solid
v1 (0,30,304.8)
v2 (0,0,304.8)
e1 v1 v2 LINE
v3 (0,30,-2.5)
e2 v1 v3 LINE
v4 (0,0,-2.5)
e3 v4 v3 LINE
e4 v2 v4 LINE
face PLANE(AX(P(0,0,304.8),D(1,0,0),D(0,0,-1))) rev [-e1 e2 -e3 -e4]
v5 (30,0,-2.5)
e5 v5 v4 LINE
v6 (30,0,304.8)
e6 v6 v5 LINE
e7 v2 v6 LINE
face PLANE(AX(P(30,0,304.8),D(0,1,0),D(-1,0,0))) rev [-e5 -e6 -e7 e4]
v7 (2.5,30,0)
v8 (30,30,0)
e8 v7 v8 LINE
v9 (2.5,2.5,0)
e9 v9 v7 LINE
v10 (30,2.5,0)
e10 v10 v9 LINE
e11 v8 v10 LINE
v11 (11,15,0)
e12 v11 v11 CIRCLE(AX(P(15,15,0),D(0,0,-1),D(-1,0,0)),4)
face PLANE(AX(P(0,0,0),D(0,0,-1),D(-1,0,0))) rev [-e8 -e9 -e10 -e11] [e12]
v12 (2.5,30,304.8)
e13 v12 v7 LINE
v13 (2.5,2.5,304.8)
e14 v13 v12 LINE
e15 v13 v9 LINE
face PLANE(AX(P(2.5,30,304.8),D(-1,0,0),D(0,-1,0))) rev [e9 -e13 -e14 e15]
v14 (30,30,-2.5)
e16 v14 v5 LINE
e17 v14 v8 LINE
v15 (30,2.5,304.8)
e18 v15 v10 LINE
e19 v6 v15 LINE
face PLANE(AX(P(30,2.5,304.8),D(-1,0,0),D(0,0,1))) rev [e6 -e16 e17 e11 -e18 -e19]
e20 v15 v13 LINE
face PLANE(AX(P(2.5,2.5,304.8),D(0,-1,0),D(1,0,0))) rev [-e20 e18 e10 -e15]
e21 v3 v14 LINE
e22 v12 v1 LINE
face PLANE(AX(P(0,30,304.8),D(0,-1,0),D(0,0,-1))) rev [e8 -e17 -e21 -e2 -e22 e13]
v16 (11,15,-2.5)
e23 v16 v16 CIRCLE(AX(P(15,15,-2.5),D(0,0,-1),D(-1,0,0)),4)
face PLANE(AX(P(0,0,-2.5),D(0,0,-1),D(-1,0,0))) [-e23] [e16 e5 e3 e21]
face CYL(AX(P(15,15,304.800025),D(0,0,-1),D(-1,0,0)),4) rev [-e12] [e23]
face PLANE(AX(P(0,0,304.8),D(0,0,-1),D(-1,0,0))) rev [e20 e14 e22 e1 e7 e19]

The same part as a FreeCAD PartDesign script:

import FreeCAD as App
import Part
import Sketcher

V = App.Vector
Q = App.Units.Quantity

doc = App.newDocument("Part")
body = doc.addObject("PartDesign::Body", "Body")

sketch1 = body.newObject("Sketcher::SketchObject", "Sketch")
sketch1.AttachmentSupport = (doc.getObject("XY_Plane"), [""])
sketch1.MapMode = "FlatFace"
sketch1.addGeometry(Part.LineSegment(V(0, 30, 0), V(0, 0, 0)), False)
sketch1.addGeometry(Part.LineSegment(V(0, 0, 0), V(30, 0, 0)), False)
sketch1.addGeometry(Part.LineSegment(V(30, 0, 0), V(30, 2.5, 0)), False)
sketch1.addGeometry(Part.LineSegment(V(30, 2.5, 0), V(2.5, 2.5, 0)), False)
sketch1.addGeometry(Part.LineSegment(V(2.5, 2.5, 0), V(2.5, 30, 0)), False)
sketch1.addGeometry(Part.LineSegment(V(2.5, 30, 0), V(0, 30, 0)), False)
sketch1.addConstraint(Sketcher.Constraint("Coincident", 0, 2, 1, 1))
sketch1.addConstraint(Sketcher.Constraint("Coincident", 1, 2, 2, 1))
sketch1.addConstraint(Sketcher.Constraint("Coincident", 2, 2, 3, 1))
sketch1.addConstraint(Sketcher.Constraint("Coincident", 3, 2, 4, 1))
sketch1.addConstraint(Sketcher.Constraint("Coincident", 4, 2, 5, 1))
sketch1.addConstraint(Sketcher.Constraint("Coincident", 5, 2, 0, 1))
sketch1.addConstraint(Sketcher.Constraint("Vertical", 0))
sketch1.addConstraint(Sketcher.Constraint("Horizontal", 1))
sketch1.addConstraint(Sketcher.Constraint("Vertical", 2))
sketch1.addConstraint(Sketcher.Constraint("Horizontal", 3))
sketch1.addConstraint(Sketcher.Constraint("Vertical", 4))
sketch1.addConstraint(Sketcher.Constraint("Horizontal", 5))
sketch1.addConstraint(Sketcher.Constraint("Coincident", 0, 2, -1, 1))
sketch1.addConstraint(Sketcher.Constraint("Equal", 1, 0))
sketch1.addConstraint(Sketcher.Constraint("Equal", 5, 2))
sketch1.addConstraint(Sketcher.Constraint("DistanceX", 1, 1, 1, 2, Q("30 mm")))
sketch1.addConstraint(Sketcher.Constraint("DistanceX", 3, 2, 3, 1, Q("27.5 mm")))
pad1 = body.newObject("PartDesign::Pad", "Pad")
pad1.Profile = sketch1
pad1.Length = 304.8

sketch2 = body.newObject("Sketcher::SketchObject", "Sketch001")
sketch2.AttachmentSupport = (doc.getObject("XY_Plane"), [""])
sketch2.MapMode = "FlatFace"
sketch2.addGeometry(Part.LineSegment(V(30, 30, 0), V(30, 0, 0)), False)
sketch2.addGeometry(Part.LineSegment(V(30, 0, 0), V(0, 0, 0)), False)
sketch2.addGeometry(Part.LineSegment(V(0, 0, 0), V(0, 30, 0)), False)
sketch2.addGeometry(Part.LineSegment(V(0, 30, 0), V(30, 30, 0)), False)
sketch2.addConstraint(Sketcher.Constraint("Coincident", 0, 2, 1, 1))
sketch2.addConstraint(Sketcher.Constraint("Coincident", 1, 2, 2, 1))
sketch2.addConstraint(Sketcher.Constraint("Coincident", 2, 2, 3, 1))
sketch2.addConstraint(Sketcher.Constraint("Coincident", 3, 2, 0, 1))
sketch2.addConstraint(Sketcher.Constraint("Vertical", 0))
sketch2.addConstraint(Sketcher.Constraint("Horizontal", 1))
sketch2.addConstraint(Sketcher.Constraint("Vertical", 2))
sketch2.addConstraint(Sketcher.Constraint("Horizontal", 3))
sketch2.addConstraint(Sketcher.Constraint("Coincident", 1, 2, -1, 1))
sketch2.addConstraint(Sketcher.Constraint("Equal", 3, 0))
sketch2.addConstraint(Sketcher.Constraint("DistanceX", 1, 2, 1, 1, Q("30 mm")))
pad2 = body.newObject("PartDesign::Pad", "Pad001")
pad2.Profile = sketch2
pad2.Length = 2.5
pad2.Reversed = True

sketch3 = body.newObject("Sketcher::SketchObject", "Sketch002")
sketch3.AttachmentSupport = (doc.getObject("XY_Plane"), [""])
sketch3.MapMode = "FlatFace"
sketch3.AttachmentOffset = App.Placement(V(0, 0, -2.5), App.Rotation())
sketch3.addGeometry(Part.Circle(V(15, 15, 0), V(0, 0, 1), 4), False)
sketch3.addConstraint(Sketcher.Constraint("Diameter", 0, Q("8 mm")))
sketch3.addConstraint(Sketcher.Constraint("DistanceX", -1, 1, 0, 3, Q("15 mm")))
sketch3.addConstraint(Sketcher.Constraint("DistanceY", -1, 1, 0, 3, Q("15 mm")))
pocket1 = body.newObject("PartDesign::Pocket", "Pocket")
pocket1.Profile = sketch3
pocket1.Type = "ThroughAll"
pocket1.Reversed = True

doc.recompute()
